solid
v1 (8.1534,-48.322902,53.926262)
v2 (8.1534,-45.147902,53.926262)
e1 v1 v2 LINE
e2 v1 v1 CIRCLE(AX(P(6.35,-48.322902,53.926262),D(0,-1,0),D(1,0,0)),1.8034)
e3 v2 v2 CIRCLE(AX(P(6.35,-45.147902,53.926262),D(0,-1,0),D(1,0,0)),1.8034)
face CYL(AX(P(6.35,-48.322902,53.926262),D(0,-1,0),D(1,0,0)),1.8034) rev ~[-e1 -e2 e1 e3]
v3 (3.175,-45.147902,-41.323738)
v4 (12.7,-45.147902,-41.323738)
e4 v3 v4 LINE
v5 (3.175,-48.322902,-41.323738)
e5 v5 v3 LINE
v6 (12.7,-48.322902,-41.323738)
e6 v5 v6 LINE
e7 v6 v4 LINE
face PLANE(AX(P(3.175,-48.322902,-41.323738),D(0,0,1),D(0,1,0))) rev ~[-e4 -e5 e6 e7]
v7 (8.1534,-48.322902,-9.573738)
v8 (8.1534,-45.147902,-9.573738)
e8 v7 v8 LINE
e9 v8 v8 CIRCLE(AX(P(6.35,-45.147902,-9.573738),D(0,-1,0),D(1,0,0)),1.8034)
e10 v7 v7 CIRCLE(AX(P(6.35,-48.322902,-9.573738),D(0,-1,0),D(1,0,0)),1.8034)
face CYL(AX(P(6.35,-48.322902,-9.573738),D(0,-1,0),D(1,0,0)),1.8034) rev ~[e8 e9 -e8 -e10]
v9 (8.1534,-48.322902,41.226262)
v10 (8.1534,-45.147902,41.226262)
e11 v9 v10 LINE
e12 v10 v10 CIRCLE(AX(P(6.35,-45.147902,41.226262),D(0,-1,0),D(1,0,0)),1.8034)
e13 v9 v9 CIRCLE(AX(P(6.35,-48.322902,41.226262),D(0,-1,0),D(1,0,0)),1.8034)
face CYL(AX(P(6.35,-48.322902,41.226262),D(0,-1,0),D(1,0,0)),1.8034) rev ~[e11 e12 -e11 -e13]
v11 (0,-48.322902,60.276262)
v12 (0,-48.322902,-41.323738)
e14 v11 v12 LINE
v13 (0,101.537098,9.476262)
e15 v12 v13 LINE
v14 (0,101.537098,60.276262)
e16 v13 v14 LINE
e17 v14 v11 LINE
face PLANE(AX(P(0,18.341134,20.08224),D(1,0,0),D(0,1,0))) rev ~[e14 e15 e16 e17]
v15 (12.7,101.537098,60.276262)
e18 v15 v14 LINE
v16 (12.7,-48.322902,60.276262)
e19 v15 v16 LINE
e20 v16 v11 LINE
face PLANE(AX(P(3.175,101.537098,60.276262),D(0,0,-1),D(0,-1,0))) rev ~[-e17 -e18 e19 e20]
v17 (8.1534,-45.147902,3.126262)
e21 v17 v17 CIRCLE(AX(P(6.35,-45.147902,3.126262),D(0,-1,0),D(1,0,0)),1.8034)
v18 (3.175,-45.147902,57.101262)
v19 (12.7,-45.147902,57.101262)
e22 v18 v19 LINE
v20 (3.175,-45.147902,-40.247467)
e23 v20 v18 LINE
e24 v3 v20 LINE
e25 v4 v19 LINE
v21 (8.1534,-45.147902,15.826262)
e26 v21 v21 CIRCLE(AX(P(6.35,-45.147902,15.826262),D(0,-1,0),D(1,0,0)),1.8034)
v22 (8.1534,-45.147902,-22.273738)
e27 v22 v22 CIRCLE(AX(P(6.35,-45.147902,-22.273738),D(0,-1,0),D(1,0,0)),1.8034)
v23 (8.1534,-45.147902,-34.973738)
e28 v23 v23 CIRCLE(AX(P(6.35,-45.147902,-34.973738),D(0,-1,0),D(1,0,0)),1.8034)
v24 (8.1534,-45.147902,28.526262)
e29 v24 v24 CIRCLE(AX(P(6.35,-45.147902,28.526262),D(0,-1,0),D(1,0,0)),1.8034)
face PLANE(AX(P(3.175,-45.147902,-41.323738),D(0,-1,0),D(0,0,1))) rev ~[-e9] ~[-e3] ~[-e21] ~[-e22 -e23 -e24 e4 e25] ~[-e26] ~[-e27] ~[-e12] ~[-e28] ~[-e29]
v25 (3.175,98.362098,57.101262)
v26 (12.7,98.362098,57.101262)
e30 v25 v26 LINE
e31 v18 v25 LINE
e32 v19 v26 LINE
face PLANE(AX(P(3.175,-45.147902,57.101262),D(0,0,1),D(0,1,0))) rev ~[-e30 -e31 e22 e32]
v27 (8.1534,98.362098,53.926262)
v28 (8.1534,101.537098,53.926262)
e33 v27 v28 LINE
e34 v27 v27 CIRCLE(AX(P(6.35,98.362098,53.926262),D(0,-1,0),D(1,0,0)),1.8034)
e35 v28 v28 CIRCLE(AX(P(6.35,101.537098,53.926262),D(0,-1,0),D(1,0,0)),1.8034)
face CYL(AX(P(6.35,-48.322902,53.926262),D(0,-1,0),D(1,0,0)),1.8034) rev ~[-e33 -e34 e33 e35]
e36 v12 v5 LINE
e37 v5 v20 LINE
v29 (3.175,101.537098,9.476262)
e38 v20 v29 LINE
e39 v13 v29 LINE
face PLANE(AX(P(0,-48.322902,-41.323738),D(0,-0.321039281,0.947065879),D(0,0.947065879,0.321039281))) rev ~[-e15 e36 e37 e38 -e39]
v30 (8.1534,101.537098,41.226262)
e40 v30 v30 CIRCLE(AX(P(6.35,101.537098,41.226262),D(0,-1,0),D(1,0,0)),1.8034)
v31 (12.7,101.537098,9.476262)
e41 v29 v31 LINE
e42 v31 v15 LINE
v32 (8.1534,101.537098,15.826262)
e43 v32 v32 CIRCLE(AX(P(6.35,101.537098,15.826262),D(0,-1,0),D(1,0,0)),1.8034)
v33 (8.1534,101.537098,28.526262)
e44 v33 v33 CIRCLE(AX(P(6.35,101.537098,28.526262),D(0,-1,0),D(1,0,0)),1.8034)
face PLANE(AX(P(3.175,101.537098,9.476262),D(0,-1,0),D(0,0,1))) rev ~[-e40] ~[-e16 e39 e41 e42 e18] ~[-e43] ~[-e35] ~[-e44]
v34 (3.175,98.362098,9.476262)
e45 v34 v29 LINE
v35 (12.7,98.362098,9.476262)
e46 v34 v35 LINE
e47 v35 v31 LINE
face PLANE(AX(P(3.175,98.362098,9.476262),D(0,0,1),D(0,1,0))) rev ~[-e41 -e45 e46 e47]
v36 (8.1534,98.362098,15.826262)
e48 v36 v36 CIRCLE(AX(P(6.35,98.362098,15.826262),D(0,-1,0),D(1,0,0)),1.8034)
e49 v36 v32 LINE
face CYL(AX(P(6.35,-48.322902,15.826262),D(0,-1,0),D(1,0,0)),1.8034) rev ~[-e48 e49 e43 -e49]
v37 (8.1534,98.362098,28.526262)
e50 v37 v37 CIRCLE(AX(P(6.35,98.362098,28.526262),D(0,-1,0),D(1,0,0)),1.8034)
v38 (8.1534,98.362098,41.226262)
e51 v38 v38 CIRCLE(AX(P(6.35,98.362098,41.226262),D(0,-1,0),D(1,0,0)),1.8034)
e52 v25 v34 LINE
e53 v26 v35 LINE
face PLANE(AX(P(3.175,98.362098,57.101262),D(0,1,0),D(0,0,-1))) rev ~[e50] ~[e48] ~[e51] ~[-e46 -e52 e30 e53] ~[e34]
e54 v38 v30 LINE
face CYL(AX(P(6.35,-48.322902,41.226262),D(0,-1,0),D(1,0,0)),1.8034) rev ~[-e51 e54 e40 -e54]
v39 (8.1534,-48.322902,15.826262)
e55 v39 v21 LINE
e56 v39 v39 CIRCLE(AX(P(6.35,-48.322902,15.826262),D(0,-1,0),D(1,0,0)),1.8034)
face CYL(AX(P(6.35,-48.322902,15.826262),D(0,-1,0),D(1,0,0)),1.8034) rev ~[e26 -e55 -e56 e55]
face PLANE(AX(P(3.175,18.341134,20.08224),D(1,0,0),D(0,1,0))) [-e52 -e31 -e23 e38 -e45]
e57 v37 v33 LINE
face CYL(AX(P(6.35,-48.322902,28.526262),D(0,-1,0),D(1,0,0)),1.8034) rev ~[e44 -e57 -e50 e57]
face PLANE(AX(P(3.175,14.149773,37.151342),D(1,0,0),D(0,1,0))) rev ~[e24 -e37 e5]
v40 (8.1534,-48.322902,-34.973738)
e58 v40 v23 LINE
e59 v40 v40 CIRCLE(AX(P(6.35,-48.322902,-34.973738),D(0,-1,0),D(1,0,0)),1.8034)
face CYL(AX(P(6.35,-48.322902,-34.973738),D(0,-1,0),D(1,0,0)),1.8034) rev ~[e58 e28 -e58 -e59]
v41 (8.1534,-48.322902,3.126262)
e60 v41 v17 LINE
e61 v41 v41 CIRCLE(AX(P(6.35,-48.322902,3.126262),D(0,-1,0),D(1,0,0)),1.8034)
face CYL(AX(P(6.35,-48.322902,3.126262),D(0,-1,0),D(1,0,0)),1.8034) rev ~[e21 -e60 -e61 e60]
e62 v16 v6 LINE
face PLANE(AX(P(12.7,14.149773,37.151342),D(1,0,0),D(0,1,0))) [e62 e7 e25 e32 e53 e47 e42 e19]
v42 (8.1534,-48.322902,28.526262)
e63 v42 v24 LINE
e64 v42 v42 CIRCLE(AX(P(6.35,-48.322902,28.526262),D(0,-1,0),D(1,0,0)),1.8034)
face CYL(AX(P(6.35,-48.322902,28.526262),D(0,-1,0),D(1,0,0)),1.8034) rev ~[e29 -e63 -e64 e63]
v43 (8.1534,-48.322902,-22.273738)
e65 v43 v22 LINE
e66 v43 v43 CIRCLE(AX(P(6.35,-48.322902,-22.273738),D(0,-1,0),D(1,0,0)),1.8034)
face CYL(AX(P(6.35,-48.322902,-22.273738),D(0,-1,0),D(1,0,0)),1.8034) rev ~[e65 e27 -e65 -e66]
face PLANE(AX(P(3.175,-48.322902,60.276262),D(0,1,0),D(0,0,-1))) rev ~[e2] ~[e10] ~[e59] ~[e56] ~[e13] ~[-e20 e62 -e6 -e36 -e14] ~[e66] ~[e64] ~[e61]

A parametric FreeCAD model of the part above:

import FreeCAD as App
import Part
import Sketcher
from FreeCAD import Vector
Q = App.Units.Quantity


def add_polygon(sketch, points):
    """Adds a closed chain of lines whose ends are joined by coincident constraints."""
    first, n = sketch.GeometryCount, len(points)
    for a, b in zip(points, points[1:] + points[:1]):
        sketch.addGeometry(Part.LineSegment(App.Vector(*a, 0), App.Vector(*b, 0)), False)
    for i in range(n):
        sketch.addConstraint(Sketcher.Constraint("Coincident", first + i, 2, first + (i + 1) % n, 1))

doc = App.newDocument("Part")
body = doc.addObject("PartDesign::Body", "Body")

sketch1 = body.newObject("Sketcher::SketchObject", "Sketch")
sketch1.AttachmentSupport = (doc.getObject("YZ_Plane"), [""])
sketch1.MapMode = "FlatFace"
add_polygon(sketch1, [(-48, 60), (-48, -41), (102, 9), (102, 60)])
sketch1.addConstraint([
    Sketcher.Constraint("Vertical", 0),
    Sketcher.Constraint("Vertical", 2),
    Sketcher.Constraint("Horizontal", 3),
    Sketcher.Constraint("DistanceY", 0, 2, 0, 1, Q("4 in")),
    Sketcher.Constraint("DistanceY", 2, 1, 2, 2, Q("2 in")),
    Sketcher.Constraint("DistanceX", 3, 2, 3, 1, Q("5.9 in")),
    Sketcher.Constraint("DistanceX", -1, 1, 1, 2, 101.537098),
    Sketcher.Constraint("DistanceY", 0, 2, -1, 1, 41.323738),
])
pad1 = body.newObject("PartDesign::Pad", "Pad")
pad1.Profile = sketch1
pad1.Length = Q("0.125 in")

sketch2 = body.newObject("Sketcher::SketchObject", "Sketch001")
sketch2.AttachmentSupport = (doc.getObject("YZ_Plane"), [""])
sketch2.MapMode = "FlatFace"
sketch2.AttachmentOffset = App.Placement(Vector(0, 0, 0.125 * 25.4), App.Rotation())
add_polygon(sketch2, [(-48.3, -41.3), (-45.1, -41.3), (-45.1, 57.1), (98.4, 57.1), (98.4, 9.5), (101.5, 9.5), (101.5, 60.3), (-48.3, 60.3)])
sketch2.addConstraint([
    Sketcher.Constraint("Horizontal", 0),
    Sketcher.Constraint("Vertical", 1),
    Sketcher.Constraint("Horizontal", 2),
    Sketcher.Constraint("Vertical", 3),
    Sketcher.Constraint("Horizontal", 4),
    Sketcher.Constraint("Vertical", 5),
    Sketcher.Constraint("Horizontal", 6),
    Sketcher.Constraint("Vertical", 7),
    Sketcher.Constraint("Equal", 0, 4),
    Sketcher.Constraint("DistanceY", 5, 1, 5, 2, Q("2 in")),
    Sketcher.Constraint("DistanceY", 7, 2, 7, 1, Q("4 in")),
    Sketcher.Constraint("DistanceX", 6, 2, 6, 1, Q("5.9 in")),
    Sketcher.Constraint("DistanceX", 2, 1, 2, 2, Q("5.65 in")),
    Sketcher.Constraint("DistanceY", 1, 1, 1, 2, Q("3.875 in")),
    Sketcher.Constraint("DistanceX", -1, 1, 2, 2, 98.362098),
    Sketcher.Constraint("DistanceY", -1, 1, 1, 2, 57.101262),
])
pad2 = body.newObject("PartDesign::Pad", "Pad001")
pad2.Profile = sketch2
pad2.Length = Q("0.375 in")

sketch3 = body.newObject("Sketcher::SketchObject", "Sketch002")
sketch3.AttachmentSupport = (doc.getObject("XZ_Plane"), [""])
sketch3.MapMode = "FlatFace"
sketch3.AttachmentOffset = App.Placement(Vector(0, 0, 48.322902), App.Rotation())
sketch3.addGeometry([
    Part.Circle(Vector(6.3, -35, 0), Vector(0, 0, 1), 1.8),
    Part.Circle(Vector(6.3, -22.3, 0), Vector(0, 0, 1), 1.8),
    Part.Circle(Vector(6.3, -9.6, 0), Vector(0, 0, 1), 1.8),
    Part.Circle(Vector(6.3, 3.1, 0), Vector(0, 0, 1), 1.8),
    Part.Circle(Vector(6.3, 15.8, 0), Vector(0, 0, 1), 1.8),
    Part.Circle(Vector(6.3, 28.5, 0), Vector(0, 0, 1), 1.8),
    Part.Circle(Vector(6.3, 41.2, 0), Vector(0, 0, 1), 1.8),
    Part.Circle(Vector(6.3, 53.9, 0), Vector(0, 0, 1), 1.8),
], False)
sketch3.addConstraint([
    Sketcher.Constraint("Equal", 0, 1),
    Sketcher.Constraint("Equal", 1, 2),
    Sketcher.Constraint("Equal", 2, 3),
    Sketcher.Constraint("Equal", 3, 4),
    Sketcher.Constraint("Equal", 4, 5),
    Sketcher.Constraint("Equal", 5, 6),
    Sketcher.Constraint("Equal", 6, 7),
    Sketcher.Constraint("Vertical", 0, 3, 1, 3),
    Sketcher.Constraint("Vertical", 1, 3, 2, 3),
    Sketcher.Constraint("Vertical", 2, 3, 3, 3),
    Sketcher.Constraint("Vertical", 3, 3, 4, 3),
    Sketcher.Constraint("Vertical", 4, 3, 5, 3),
    Sketcher.Constraint("Vertical", 5, 3, 6, 3),
    Sketcher.Constraint("Vertical", 6, 3, 7, 3),
    Sketcher.Constraint("Diameter", 0, Q("0.142 in")),
    Sketcher.Constraint("DistanceY", 0, 3, 2, 3, Q("1 in")),
    Sketcher.Constraint("DistanceY", 1, 3, 3, 3, Q("1 in")),
    Sketcher.Constraint("DistanceY", 2, 3, 4, 3, Q("1 in")),
    Sketcher.Constraint("DistanceY", 3, 3, 5, 3, Q("1 in")),
    Sketcher.Constraint("DistanceY", 4, 3, 6, 3, Q("1 in")),
    Sketcher.Constraint("DistanceY", 5, 3, 7, 3, Q("1 in")),
    Sketcher.Constraint("DistanceY", 0, 3, 1, 3, Q("0.5 in")),
    Sketcher.Constraint("DistanceX", -1, 1, 0, 3, Q("0.25 in")),
    Sketcher.Constraint("DistanceY", 1, 3, -1, 1, 22.273738),
])
pocket1 = body.newObject("PartDesign::Pocket", "Pocket")
pocket1.Profile = sketch3
pocket1.Type = "ThroughAll"

doc.recompute()
